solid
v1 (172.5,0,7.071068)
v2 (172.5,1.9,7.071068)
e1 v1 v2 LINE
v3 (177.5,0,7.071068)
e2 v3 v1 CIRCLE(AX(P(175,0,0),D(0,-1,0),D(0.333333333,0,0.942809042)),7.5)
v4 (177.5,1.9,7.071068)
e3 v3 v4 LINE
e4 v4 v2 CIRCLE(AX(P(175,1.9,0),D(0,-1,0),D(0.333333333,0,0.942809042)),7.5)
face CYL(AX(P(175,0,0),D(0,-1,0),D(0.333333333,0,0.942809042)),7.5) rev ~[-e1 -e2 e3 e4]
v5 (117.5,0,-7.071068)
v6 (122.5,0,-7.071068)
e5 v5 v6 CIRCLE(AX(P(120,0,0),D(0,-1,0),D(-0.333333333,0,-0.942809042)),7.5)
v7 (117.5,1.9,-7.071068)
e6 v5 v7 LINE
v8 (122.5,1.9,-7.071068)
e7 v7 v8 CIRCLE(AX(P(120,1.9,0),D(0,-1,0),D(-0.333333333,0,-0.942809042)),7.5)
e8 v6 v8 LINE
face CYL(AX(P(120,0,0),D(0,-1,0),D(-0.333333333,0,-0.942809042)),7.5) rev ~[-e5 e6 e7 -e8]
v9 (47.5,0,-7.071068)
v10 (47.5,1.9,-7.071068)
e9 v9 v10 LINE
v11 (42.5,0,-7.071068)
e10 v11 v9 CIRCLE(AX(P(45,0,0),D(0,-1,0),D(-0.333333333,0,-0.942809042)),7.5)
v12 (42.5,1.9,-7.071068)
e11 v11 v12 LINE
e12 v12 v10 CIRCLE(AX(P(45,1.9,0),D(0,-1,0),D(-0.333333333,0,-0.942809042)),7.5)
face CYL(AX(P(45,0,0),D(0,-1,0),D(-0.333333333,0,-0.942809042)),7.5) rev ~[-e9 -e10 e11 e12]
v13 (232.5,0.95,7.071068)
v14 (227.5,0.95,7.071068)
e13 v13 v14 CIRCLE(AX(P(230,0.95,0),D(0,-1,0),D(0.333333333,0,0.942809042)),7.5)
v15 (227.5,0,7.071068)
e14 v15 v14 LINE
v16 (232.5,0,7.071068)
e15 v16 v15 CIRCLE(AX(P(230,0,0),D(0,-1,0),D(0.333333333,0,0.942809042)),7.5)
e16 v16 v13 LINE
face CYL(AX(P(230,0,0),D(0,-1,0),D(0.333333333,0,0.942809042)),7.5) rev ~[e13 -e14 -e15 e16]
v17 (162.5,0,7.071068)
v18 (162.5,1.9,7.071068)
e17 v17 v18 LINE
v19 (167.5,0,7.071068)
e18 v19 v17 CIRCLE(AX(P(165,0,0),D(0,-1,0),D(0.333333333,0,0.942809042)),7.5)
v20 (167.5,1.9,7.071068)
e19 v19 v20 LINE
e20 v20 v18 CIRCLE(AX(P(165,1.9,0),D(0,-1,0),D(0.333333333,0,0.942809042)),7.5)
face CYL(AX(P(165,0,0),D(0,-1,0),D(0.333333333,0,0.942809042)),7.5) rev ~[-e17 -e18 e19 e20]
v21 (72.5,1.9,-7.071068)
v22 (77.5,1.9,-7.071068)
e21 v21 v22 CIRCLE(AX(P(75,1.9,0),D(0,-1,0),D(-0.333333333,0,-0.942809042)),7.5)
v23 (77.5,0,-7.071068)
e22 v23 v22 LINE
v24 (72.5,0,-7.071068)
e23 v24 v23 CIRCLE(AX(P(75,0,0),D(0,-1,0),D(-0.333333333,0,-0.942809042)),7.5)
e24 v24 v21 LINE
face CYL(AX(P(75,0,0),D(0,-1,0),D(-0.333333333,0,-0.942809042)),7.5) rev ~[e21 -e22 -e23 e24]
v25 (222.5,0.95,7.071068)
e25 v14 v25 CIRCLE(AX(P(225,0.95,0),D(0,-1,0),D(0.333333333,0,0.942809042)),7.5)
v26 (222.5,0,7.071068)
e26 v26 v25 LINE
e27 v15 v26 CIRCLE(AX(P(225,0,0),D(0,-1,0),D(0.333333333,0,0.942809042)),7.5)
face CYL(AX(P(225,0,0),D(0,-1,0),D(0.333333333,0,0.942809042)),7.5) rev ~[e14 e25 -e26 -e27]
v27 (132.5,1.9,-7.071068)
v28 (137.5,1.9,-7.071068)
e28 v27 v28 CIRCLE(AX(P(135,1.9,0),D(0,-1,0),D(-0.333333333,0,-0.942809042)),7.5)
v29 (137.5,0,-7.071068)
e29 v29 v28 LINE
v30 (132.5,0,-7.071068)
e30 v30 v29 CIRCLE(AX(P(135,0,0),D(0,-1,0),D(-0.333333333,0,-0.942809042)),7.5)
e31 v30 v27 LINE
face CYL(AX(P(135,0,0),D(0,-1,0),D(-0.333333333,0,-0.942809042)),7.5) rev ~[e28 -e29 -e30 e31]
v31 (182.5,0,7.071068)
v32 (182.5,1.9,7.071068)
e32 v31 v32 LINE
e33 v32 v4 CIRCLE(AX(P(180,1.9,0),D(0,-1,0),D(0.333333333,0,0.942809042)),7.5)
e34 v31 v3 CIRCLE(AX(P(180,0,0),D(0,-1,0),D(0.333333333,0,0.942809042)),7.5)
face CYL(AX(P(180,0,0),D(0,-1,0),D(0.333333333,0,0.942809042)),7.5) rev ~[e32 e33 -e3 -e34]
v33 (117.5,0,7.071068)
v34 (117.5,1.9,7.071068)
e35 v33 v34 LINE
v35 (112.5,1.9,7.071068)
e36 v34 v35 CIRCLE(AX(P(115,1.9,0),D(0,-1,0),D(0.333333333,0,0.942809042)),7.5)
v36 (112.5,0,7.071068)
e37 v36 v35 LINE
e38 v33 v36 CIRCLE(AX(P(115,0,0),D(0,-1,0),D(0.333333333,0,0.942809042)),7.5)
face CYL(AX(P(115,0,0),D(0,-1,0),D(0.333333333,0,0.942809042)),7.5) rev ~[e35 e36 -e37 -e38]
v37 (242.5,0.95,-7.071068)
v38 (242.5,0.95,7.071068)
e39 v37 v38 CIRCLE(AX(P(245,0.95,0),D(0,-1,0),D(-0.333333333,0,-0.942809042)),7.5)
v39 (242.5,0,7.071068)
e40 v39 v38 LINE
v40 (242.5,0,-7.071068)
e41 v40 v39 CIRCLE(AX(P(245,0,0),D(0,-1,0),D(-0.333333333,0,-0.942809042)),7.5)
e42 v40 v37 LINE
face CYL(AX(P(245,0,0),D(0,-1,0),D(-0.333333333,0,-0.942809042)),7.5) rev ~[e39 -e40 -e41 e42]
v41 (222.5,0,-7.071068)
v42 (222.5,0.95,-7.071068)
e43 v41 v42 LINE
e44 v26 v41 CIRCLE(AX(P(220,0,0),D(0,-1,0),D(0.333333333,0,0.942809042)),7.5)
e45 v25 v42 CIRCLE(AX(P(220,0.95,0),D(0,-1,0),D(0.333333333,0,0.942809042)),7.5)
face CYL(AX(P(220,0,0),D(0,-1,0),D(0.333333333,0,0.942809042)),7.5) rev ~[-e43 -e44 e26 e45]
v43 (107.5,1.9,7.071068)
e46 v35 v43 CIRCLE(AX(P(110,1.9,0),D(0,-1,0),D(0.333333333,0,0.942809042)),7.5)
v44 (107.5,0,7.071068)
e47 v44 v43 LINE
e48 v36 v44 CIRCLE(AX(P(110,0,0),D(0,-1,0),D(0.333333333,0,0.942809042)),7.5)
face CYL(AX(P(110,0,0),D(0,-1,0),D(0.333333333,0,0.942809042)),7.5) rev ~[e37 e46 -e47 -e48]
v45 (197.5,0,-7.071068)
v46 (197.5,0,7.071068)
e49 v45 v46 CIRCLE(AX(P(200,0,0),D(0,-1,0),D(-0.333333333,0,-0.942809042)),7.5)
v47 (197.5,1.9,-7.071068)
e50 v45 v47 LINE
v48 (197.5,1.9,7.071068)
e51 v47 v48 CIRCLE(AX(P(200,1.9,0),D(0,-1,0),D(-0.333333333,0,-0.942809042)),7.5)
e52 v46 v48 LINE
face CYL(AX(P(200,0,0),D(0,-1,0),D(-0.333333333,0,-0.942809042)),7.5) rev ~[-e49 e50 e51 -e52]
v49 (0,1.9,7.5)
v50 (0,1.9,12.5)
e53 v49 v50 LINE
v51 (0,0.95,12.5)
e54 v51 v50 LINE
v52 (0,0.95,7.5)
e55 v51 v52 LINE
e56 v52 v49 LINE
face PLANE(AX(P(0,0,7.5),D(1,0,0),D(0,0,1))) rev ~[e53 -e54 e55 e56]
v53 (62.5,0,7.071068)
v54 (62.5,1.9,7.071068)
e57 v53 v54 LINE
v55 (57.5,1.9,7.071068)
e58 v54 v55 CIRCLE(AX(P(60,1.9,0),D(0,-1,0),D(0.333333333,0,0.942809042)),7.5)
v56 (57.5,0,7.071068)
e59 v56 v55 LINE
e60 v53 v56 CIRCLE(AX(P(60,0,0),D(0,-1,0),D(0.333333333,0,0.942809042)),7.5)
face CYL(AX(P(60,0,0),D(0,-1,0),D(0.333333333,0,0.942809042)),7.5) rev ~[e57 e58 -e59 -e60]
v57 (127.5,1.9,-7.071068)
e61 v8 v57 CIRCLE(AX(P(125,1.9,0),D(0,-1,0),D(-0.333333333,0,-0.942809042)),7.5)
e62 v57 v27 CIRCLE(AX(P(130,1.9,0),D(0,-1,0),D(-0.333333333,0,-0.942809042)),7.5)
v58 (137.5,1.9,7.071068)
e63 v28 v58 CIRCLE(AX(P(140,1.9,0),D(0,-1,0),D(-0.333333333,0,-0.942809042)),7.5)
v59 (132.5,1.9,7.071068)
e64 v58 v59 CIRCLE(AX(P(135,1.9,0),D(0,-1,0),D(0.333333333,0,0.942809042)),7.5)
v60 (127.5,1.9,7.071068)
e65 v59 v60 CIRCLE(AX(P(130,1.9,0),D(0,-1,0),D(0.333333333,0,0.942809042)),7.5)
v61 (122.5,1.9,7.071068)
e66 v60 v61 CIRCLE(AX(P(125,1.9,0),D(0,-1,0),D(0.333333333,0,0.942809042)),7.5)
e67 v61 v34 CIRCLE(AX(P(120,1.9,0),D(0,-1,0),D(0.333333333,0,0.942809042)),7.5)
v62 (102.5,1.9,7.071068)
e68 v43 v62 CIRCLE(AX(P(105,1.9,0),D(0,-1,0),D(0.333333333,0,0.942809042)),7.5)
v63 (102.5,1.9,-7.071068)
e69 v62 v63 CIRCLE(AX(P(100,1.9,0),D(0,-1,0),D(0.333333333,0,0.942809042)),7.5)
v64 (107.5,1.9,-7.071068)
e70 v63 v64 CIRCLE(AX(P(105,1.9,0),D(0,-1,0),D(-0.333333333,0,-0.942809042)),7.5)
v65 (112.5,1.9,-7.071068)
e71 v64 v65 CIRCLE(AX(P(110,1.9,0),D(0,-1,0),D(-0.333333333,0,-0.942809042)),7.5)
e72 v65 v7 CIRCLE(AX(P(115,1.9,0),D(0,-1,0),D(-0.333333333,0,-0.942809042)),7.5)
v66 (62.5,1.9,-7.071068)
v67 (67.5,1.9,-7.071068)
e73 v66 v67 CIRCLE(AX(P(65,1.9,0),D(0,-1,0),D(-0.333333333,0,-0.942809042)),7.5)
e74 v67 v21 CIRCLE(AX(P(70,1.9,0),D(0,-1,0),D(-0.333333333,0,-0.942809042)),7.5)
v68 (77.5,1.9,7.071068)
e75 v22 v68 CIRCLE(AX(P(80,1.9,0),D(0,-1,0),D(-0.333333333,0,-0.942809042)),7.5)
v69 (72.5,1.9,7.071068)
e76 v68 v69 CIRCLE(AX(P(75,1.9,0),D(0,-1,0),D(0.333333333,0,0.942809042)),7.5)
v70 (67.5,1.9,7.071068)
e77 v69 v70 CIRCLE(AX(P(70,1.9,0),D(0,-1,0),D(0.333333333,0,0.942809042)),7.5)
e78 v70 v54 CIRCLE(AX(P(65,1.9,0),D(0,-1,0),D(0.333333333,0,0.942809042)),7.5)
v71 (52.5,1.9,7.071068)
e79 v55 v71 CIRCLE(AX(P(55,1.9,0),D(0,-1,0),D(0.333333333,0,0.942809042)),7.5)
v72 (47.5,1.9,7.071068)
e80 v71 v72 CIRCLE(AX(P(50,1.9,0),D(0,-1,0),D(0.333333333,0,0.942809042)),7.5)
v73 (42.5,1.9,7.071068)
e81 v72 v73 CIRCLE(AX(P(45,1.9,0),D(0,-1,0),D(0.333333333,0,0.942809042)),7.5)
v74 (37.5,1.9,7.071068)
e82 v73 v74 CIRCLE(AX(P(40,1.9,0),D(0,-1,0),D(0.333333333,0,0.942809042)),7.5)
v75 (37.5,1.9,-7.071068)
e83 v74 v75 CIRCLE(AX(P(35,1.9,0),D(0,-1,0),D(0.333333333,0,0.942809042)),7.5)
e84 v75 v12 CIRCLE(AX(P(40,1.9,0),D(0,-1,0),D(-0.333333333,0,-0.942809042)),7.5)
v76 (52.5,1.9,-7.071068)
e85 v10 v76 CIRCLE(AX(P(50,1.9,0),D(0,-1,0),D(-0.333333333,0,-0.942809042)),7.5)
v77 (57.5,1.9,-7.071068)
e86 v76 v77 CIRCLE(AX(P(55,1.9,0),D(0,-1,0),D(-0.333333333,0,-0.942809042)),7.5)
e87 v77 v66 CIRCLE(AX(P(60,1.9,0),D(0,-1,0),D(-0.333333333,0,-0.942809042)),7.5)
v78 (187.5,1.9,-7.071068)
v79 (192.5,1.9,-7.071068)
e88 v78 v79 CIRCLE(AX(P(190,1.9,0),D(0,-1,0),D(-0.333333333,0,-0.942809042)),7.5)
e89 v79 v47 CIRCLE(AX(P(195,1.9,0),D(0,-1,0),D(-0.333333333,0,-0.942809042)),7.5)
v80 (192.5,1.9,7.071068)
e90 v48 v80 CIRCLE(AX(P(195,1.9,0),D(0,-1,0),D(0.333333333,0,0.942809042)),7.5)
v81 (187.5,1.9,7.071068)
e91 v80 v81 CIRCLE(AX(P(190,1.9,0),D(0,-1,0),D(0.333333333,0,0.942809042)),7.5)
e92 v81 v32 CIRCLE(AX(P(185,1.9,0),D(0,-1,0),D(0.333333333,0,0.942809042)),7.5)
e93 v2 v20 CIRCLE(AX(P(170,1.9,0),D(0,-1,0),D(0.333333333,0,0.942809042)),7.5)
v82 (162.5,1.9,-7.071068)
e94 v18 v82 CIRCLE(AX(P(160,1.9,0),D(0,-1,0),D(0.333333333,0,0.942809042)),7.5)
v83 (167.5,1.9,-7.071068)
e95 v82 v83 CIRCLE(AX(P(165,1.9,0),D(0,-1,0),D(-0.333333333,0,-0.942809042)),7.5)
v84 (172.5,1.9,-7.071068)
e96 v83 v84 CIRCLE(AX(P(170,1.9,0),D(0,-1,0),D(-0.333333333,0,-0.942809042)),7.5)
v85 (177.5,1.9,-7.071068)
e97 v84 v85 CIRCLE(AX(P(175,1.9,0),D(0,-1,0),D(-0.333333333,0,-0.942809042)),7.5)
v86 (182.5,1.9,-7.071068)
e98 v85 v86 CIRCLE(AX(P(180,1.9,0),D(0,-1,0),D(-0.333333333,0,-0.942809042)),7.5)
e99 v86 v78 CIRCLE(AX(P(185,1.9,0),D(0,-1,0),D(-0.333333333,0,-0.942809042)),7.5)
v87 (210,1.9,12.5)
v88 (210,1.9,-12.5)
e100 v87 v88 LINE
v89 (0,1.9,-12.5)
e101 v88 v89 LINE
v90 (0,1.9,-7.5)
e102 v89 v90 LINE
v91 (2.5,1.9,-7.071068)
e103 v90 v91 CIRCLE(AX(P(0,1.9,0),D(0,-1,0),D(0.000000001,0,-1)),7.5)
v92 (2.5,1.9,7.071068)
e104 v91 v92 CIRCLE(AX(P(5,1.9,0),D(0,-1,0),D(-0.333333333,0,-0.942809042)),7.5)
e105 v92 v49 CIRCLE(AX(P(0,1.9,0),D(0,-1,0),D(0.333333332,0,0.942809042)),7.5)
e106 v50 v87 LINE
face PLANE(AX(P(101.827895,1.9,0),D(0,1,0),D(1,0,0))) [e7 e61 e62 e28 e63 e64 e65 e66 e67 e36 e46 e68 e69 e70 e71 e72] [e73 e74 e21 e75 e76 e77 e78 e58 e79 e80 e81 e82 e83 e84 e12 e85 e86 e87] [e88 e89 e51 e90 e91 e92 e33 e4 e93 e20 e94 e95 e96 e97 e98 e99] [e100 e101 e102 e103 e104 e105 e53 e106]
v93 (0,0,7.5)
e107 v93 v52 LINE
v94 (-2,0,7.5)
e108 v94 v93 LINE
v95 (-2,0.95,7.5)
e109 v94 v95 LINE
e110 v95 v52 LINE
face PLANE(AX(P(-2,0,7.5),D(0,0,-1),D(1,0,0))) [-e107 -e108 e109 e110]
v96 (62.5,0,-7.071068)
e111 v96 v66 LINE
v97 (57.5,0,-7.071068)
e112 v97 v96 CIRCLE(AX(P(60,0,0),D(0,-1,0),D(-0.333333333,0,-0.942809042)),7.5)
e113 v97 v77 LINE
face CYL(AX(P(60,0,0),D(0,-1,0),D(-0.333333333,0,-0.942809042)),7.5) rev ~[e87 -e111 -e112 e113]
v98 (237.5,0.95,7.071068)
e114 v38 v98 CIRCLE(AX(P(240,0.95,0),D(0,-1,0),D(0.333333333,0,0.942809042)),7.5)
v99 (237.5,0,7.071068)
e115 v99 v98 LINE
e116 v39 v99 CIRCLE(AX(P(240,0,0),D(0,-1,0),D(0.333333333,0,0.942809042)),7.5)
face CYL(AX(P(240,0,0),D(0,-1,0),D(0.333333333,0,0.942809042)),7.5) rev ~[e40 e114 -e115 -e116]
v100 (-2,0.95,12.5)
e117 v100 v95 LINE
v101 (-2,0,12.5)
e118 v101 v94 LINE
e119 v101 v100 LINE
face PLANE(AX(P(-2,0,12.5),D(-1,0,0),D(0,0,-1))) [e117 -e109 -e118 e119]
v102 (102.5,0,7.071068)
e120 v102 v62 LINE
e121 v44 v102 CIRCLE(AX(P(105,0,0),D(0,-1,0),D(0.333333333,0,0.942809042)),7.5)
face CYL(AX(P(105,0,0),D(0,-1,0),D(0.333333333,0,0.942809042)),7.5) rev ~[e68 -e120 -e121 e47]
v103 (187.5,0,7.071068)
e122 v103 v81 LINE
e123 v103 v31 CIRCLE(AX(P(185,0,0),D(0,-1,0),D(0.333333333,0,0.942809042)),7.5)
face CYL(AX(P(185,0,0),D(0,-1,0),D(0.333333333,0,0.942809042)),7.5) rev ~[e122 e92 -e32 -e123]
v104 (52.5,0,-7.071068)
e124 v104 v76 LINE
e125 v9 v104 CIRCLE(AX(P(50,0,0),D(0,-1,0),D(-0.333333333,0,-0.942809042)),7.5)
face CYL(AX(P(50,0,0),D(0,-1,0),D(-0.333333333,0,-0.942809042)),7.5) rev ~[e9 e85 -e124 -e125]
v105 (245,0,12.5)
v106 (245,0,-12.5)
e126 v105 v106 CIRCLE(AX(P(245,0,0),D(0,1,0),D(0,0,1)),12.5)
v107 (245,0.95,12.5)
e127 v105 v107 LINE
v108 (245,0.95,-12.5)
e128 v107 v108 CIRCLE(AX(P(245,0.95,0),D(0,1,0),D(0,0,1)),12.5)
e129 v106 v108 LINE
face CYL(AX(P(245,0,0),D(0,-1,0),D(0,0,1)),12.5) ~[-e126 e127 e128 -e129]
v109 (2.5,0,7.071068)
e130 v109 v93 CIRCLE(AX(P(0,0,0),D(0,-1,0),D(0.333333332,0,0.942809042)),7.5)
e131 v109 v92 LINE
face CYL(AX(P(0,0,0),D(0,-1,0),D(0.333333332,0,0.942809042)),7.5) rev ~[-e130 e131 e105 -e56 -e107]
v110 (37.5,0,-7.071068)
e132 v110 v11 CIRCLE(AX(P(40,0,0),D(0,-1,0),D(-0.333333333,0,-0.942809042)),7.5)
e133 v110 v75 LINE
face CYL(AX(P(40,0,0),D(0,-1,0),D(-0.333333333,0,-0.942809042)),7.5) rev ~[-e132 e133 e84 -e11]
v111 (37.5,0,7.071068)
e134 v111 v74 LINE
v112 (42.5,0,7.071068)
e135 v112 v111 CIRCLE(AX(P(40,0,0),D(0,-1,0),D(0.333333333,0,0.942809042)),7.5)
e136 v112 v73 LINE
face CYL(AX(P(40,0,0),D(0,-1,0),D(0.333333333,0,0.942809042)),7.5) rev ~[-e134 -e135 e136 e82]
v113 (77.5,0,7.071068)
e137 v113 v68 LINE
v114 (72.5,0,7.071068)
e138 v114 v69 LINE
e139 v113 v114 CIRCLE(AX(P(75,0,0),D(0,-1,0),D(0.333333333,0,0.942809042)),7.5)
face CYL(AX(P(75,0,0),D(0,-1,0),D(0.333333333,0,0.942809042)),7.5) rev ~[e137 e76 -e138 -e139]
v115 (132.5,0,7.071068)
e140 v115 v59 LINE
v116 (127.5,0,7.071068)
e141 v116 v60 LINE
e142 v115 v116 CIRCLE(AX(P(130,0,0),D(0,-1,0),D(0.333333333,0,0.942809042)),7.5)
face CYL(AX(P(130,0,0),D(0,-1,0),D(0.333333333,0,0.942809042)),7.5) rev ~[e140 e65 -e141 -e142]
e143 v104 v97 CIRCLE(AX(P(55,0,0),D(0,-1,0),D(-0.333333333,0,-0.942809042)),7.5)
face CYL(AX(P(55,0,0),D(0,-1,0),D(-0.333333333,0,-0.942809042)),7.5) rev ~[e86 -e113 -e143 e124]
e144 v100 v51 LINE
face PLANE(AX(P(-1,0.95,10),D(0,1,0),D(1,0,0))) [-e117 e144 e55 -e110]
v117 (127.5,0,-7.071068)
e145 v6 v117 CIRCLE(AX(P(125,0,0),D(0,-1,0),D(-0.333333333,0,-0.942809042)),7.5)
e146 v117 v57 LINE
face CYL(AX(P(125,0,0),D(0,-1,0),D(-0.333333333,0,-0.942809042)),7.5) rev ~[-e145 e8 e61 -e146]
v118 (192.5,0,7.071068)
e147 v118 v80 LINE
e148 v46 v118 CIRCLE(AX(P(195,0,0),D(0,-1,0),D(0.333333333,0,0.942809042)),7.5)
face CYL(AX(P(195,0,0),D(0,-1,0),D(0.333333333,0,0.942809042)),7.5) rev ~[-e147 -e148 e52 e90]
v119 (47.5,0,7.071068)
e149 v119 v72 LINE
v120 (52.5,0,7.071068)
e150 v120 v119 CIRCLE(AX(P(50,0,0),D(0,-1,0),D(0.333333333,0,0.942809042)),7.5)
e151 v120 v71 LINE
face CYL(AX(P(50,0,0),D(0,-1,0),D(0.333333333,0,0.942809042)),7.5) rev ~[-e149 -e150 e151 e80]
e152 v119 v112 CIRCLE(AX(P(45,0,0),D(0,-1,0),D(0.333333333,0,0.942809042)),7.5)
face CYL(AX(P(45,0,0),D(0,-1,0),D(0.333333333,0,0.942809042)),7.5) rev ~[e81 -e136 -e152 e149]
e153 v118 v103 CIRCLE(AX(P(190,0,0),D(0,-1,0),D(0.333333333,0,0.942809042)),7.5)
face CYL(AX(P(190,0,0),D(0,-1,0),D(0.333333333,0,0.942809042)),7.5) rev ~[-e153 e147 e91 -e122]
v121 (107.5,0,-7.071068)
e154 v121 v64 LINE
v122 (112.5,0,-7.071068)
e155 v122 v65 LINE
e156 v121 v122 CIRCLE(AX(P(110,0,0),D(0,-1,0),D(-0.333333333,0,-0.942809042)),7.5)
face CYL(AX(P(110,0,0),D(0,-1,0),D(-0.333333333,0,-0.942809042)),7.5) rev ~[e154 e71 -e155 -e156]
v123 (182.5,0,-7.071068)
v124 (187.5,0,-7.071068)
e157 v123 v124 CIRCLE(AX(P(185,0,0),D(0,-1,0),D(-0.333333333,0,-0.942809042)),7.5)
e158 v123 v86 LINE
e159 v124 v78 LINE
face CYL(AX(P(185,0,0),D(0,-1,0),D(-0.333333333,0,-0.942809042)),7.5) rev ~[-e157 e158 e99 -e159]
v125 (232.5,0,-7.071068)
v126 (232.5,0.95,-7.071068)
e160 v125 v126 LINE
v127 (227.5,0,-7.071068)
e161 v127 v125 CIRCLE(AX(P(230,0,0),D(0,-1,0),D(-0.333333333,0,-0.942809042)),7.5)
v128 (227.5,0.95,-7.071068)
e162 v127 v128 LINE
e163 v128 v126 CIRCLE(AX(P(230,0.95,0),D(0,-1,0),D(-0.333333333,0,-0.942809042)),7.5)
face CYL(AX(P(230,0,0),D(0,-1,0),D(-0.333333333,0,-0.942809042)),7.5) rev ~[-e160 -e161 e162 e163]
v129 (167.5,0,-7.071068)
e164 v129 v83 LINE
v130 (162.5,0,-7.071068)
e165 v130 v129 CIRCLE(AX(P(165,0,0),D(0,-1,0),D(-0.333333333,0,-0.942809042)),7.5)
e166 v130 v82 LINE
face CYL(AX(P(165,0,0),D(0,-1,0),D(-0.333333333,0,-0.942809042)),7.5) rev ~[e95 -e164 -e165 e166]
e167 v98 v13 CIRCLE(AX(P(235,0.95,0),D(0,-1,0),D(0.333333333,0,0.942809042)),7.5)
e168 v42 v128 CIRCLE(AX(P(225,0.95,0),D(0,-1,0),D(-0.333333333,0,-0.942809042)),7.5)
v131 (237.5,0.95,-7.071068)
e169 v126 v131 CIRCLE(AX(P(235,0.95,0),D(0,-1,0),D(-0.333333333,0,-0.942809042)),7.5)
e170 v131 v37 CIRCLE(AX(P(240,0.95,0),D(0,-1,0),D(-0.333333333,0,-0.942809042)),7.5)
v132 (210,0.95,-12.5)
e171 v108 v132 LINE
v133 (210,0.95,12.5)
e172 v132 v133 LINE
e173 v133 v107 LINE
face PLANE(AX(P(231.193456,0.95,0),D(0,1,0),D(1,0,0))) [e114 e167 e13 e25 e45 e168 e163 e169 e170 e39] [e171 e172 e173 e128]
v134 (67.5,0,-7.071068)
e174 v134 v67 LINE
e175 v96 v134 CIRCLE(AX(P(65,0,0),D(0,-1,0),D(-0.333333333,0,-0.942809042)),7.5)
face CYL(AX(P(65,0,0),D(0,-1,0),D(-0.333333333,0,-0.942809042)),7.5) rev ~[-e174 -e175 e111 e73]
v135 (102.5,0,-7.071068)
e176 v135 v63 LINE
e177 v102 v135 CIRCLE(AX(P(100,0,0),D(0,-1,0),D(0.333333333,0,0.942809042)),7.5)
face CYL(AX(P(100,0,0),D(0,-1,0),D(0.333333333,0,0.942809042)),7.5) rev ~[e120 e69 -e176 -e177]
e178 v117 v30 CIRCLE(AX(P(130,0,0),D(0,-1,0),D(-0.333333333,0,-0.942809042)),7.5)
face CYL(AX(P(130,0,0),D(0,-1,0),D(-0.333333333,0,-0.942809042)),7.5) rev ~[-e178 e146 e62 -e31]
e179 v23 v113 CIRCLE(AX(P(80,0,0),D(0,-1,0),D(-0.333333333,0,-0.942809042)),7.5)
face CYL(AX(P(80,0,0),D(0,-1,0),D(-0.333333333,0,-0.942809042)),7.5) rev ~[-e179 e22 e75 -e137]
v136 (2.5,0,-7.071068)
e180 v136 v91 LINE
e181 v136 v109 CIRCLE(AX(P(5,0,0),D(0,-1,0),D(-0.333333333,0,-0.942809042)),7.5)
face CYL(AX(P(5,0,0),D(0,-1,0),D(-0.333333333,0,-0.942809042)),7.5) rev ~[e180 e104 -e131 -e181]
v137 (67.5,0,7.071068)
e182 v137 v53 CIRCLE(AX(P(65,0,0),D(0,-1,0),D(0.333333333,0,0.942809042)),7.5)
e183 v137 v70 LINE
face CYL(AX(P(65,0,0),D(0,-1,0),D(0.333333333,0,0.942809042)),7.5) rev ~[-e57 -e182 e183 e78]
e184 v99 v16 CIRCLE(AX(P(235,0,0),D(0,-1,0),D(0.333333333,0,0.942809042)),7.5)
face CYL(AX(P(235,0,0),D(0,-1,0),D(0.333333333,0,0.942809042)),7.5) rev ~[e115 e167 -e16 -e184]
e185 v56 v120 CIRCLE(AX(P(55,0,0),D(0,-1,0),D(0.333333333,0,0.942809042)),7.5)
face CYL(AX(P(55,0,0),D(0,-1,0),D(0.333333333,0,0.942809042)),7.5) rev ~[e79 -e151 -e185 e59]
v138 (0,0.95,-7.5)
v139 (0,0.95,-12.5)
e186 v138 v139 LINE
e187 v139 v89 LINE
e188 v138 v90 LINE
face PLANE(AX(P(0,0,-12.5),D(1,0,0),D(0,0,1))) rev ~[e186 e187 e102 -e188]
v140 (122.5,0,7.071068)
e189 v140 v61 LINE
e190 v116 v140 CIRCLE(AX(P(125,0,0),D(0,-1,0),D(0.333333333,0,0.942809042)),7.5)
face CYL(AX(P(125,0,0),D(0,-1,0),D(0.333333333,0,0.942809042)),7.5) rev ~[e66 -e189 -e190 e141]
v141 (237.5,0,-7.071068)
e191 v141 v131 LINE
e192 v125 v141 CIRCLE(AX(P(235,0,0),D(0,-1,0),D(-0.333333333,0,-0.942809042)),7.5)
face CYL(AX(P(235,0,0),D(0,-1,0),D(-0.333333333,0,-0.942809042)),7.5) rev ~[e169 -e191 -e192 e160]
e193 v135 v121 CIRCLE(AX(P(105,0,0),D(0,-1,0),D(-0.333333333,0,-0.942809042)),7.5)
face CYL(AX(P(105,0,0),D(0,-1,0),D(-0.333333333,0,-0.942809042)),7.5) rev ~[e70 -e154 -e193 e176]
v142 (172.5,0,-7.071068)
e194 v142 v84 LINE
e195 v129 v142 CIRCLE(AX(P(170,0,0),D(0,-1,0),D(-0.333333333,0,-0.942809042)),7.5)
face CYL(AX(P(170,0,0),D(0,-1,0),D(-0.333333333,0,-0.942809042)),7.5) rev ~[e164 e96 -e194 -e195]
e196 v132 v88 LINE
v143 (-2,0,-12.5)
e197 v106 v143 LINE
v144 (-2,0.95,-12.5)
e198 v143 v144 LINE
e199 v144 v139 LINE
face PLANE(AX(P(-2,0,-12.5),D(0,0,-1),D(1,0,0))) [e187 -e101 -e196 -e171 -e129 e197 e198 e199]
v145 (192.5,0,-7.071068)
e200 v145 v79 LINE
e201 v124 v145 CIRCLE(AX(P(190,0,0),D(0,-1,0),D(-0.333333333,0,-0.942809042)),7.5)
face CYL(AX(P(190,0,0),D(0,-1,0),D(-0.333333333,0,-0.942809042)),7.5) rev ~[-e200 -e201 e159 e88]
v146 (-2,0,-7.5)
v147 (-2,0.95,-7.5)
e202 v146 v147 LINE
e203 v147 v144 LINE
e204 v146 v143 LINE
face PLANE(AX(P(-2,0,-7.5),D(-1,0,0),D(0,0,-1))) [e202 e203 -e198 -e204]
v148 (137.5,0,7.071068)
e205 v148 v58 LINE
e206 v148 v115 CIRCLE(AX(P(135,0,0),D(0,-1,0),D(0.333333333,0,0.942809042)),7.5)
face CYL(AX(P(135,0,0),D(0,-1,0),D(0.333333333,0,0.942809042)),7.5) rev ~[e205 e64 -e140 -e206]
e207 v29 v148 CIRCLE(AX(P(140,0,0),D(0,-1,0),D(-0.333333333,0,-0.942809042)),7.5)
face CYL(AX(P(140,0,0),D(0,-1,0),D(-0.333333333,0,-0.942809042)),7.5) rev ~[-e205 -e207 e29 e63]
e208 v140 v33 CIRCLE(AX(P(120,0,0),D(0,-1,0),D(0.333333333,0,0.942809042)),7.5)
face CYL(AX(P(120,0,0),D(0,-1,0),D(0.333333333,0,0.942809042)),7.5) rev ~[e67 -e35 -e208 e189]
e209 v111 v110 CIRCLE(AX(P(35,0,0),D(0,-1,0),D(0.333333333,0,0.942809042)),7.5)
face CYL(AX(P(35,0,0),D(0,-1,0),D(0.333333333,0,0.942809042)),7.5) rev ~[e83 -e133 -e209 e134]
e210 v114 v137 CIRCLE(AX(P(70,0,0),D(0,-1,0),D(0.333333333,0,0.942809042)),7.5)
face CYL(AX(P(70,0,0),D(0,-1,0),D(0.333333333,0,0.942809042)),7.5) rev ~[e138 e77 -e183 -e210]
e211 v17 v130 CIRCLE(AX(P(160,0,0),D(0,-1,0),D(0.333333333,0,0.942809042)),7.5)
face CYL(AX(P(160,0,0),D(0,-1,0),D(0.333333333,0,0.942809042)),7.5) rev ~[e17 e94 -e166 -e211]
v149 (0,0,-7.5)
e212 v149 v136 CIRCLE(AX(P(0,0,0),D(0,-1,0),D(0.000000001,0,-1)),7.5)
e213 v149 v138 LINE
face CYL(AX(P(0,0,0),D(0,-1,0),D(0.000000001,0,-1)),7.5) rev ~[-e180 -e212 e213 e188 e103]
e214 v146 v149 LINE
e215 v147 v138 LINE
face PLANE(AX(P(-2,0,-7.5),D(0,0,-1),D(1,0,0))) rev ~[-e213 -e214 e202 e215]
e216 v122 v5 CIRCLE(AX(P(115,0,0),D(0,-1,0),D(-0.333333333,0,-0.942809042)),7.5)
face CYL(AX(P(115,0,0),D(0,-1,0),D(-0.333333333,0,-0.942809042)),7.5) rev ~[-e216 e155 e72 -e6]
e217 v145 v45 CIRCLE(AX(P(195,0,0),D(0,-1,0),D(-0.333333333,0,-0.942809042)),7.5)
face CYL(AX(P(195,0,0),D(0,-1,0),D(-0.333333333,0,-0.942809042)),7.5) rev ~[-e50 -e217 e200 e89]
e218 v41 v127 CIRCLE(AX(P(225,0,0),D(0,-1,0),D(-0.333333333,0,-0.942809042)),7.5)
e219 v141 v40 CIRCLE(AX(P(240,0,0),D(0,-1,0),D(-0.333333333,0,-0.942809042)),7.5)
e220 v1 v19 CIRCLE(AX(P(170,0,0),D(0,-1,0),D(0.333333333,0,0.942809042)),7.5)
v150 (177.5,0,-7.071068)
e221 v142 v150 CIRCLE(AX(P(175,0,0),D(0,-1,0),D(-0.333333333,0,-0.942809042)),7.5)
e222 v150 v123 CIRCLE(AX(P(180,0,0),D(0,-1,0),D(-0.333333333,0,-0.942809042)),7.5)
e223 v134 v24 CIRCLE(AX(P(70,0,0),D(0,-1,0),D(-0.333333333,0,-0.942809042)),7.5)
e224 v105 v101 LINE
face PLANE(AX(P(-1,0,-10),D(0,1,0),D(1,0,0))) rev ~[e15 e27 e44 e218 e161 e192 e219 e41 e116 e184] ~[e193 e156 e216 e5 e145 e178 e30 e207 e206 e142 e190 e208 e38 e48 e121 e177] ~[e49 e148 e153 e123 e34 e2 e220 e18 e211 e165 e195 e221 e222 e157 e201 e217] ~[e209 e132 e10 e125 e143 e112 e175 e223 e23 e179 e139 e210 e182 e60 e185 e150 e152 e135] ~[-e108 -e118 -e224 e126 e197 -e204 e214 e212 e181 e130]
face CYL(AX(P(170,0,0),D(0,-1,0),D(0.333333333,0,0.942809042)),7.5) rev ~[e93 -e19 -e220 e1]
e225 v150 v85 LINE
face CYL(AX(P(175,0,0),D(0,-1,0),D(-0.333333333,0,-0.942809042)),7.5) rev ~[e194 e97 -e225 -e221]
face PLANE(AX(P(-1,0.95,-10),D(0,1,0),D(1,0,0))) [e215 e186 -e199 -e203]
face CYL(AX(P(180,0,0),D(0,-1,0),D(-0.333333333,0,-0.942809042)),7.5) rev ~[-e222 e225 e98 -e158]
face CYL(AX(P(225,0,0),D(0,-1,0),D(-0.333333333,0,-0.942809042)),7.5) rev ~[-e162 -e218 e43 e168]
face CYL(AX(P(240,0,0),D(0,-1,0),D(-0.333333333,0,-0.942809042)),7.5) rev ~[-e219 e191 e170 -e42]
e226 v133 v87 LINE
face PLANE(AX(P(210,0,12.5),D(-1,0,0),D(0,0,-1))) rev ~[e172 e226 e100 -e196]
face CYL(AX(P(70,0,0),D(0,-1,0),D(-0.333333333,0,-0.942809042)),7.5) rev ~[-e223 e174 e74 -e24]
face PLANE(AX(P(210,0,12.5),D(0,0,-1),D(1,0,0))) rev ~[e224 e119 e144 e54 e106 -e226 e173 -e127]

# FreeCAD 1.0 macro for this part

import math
import FreeCAD as App
import Part
import Sketcher
from FreeCAD import Vector
Q = App.Units.Quantity

doc = App.newDocument("Part")
body = doc.addObject("PartDesign::Body", "Body")

sketch1 = doc.addObject("Sketcher::SketchObject", "Sketch")
body.addObject(sketch1)
sketch1.AttachmentSupport = (doc.XZ_Plane, [""])
sketch1.MapMode = "FlatFace"
sketch1.addGeometry([
    Part.LineSegment(Vector(0, 7.5, 0), Vector(0, 12.5, 0)),
    Part.LineSegment(Vector(0, 12.5, 0), Vector(210, 12.5, 0)),
    Part.LineSegment(Vector(210, 12.5, 0), Vector(210, -12.5, 0)),
    Part.LineSegment(Vector(210, -12.5, 0), Vector(0, -12.5, 0)),
    Part.LineSegment(Vector(0, -12.5, 0), Vector(0, -7.5, 0)),
    Part.ArcOfCircle(Part.Circle(Vector(0, 0, 0), Vector(0, 0, 1), 7.5), math.radians(-90), math.radians(-70.53)),
    Part.ArcOfCircle(Part.Circle(Vector(5, 0, 0), Vector(0, 0, 1), 7.5), math.radians(-109), math.radians(109)),
    Part.ArcOfCircle(Part.Circle(Vector(0, 0, 0), Vector(0, 0, 1), 7.5), math.radians(70.53), math.radians(90)),
    Part.ArcOfCircle(Part.Circle(Vector(35, 0, 0), Vector(0, 0, 1), 7.5), math.radians(71), math.radians(289)),
    Part.ArcOfCircle(Part.Circle(Vector(40, 0, 0), Vector(0, 0, 1), 7.5), math.radians(-109), math.radians(-71)),
    Part.ArcOfCircle(Part.Circle(Vector(45, 0, 0), Vector(0, 0, 1), 7.5), math.radians(-109), math.radians(-71)),
    Part.ArcOfCircle(Part.Circle(Vector(50, 0, 0), Vector(0, 0, 1), 7.5), math.radians(-109), math.radians(-71)),
    Part.ArcOfCircle(Part.Circle(Vector(55, 0, 0), Vector(0, 0, 1), 7.5), math.radians(-109), math.radians(-71)),
    Part.ArcOfCircle(Part.Circle(Vector(60, 0, 0), Vector(0, 0, 1), 7.5), math.radians(-109), math.radians(-71)),
    Part.ArcOfCircle(Part.Circle(Vector(65, 0, 0), Vector(0, 0, 1), 7.5), math.radians(-109), math.radians(-71)),
    Part.ArcOfCircle(Part.Circle(Vector(70, 0, 0), Vector(0, 0, 1), 7.5), math.radians(-109), math.radians(-71)),
    Part.ArcOfCircle(Part.Circle(Vector(75, 0, 0), Vector(0, 0, 1), 7.5), math.radians(-109), math.radians(-71)),
    Part.ArcOfCircle(Part.Circle(Vector(80, 0, 0), Vector(0, 0, 1), 7.5), math.radians(-109), math.radians(109)),
    Part.ArcOfCircle(Part.Circle(Vector(75, 0, 0), Vector(0, 0, 1), 7.5), math.radians(71), math.radians(109)),
    Part.ArcOfCircle(Part.Circle(Vector(70, 0, 0), Vector(0, 0, 1), 7.5), math.radians(71), math.radians(109)),
    Part.ArcOfCircle(Part.Circle(Vector(65, 0, 0), Vector(0, 0, 1), 7.5), math.radians(71), math.radians(109)),
    Part.ArcOfCircle(Part.Circle(Vector(60, 0, 0), Vector(0, 0, 1), 7.5), math.radians(71), math.radians(109)),
    Part.ArcOfCircle(Part.Circle(Vector(55, 0, 0), Vector(0, 0, 1), 7.5), math.radians(71), math.radians(109)),
    Part.ArcOfCircle(Part.Circle(Vector(50, 0, 0), Vector(0, 0, 1), 7.5), math.radians(71), math.radians(109)),
    Part.ArcOfCircle(Part.Circle(Vector(45, 0, 0), Vector(0, 0, 1), 7.5), math.radians(71), math.radians(109)),
    Part.ArcOfCircle(Part.Circle(Vector(40, 0, 0), Vector(0, 0, 1), 7.5), math.radians(71), math.radians(109)),
    Part.ArcOfCircle(Part.Circle(Vector(100, 0, 0), Vector(0, 0, 1), 7.5), math.radians(71), math.radians(289)),
    Part.ArcOfCircle(Part.Circle(Vector(105, 0, 0), Vector(0, 0, 1), 7.5), math.radians(-109), math.radians(-71)),
    Part.ArcOfCircle(Part.Circle(Vector(110, 0, 0), Vector(0, 0, 1), 7.5), math.radians(-109), math.radians(-71)),
    Part.ArcOfCircle(Part.Circle(Vector(115, 0, 0), Vector(0, 0, 1), 7.5), math.radians(-109), math.radians(-71)),
    Part.ArcOfCircle(Part.Circle(Vector(120, 0, 0), Vector(0, 0, 1), 7.5), math.radians(-109), math.radians(-71)),
    Part.ArcOfCircle(Part.Circle(Vector(125, 0, 0), Vector(0, 0, 1), 7.5), math.radians(-109), math.radians(-71)),
    Part.ArcOfCircle(Part.Circle(Vector(130, 0, 0), Vector(0, 0, 1), 7.5), math.radians(-109), math.radians(-71)),
    Part.ArcOfCircle(Part.Circle(Vector(135, 0, 0), Vector(0, 0, 1), 7.5), math.radians(-109), math.radians(-71)),
    Part.ArcOfCircle(Part.Circle(Vector(140, 0, 0), Vector(0, 0, 1), 7.5), math.radians(-109), math.radians(109)),
    Part.ArcOfCircle(Part.Circle(Vector(135, 0, 0), Vector(0, 0, 1), 7.5), math.radians(71), math.radians(109)),
    Part.ArcOfCircle(Part.Circle(Vector(130, 0, 0), Vector(0, 0, 1), 7.5), math.radians(71), math.radians(109)),
    Part.ArcOfCircle(Part.Circle(Vector(125, 0, 0), Vector(0, 0, 1), 7.5), math.radians(71), math.radians(109)),
    Part.ArcOfCircle(Part.Circle(Vector(120, 0, 0), Vector(0, 0, 1), 7.5), math.radians(71), math.radians(109)),
    Part.ArcOfCircle(Part.Circle(Vector(115, 0, 0), Vector(0, 0, 1), 7.5), math.radians(71), math.radians(109)),
    Part.ArcOfCircle(Part.Circle(Vector(110, 0, 0), Vector(0, 0, 1), 7.5), math.radians(71), math.radians(109)),
    Part.ArcOfCircle(Part.Circle(Vector(105, 0, 0), Vector(0, 0, 1), 7.5), math.radians(71), math.radians(109)),
    Part.ArcOfCircle(Part.Circle(Vector(160, 0, 0), Vector(0, 0, 1), 7.5), math.radians(71), math.radians(289)),
    Part.ArcOfCircle(Part.Circle(Vector(165, 0, 0), Vector(0, 0, 1), 7.5), math.radians(-109), math.radians(-71)),
    Part.ArcOfCircle(Part.Circle(Vector(170, 0, 0), Vector(0, 0, 1), 7.5), math.radians(-109), math.radians(-71)),
    Part.ArcOfCircle(Part.Circle(Vector(175, 0, 0), Vector(0, 0, 1), 7.5), math.radians(-109), math.radians(-71)),
    Part.ArcOfCircle(Part.Circle(Vector(180, 0, 0), Vector(0, 0, 1), 7.5), math.radians(-109), math.radians(-71)),
    Part.ArcOfCircle(Part.Circle(Vector(185, 0, 0), Vector(0, 0, 1), 7.5), math.radians(-109), math.radians(-71)),
    Part.ArcOfCircle(Part.Circle(Vector(190, 0, 0), Vector(0, 0, 1), 7.5), math.radians(-109), math.radians(-71)),
    Part.ArcOfCircle(Part.Circle(Vector(195, 0, 0), Vector(0, 0, 1), 7.5), math.radians(-109), math.radians(-71)),
    Part.ArcOfCircle(Part.Circle(Vector(200, 0, 0), Vector(0, 0, 1), 7.5), math.radians(-109), math.radians(109)),
    Part.ArcOfCircle(Part.Circle(Vector(195, 0, 0), Vector(0, 0, 1), 7.5), math.radians(71), math.radians(109)),
    Part.ArcOfCircle(Part.Circle(Vector(190, 0, 0), Vector(0, 0, 1), 7.5), math.radians(71), math.radians(109)),
    Part.ArcOfCircle(Part.Circle(Vector(185, 0, 0), Vector(0, 0, 1), 7.5), math.radians(71), math.radians(109)),
    Part.ArcOfCircle(Part.Circle(Vector(180, 0, 0), Vector(0, 0, 1), 7.5), math.radians(71), math.radians(109)),
    Part.ArcOfCircle(Part.Circle(Vector(175, 0, 0), Vector(0, 0, 1), 7.5), math.radians(71), math.radians(109)),
    Part.ArcOfCircle(Part.Circle(Vector(170, 0, 0), Vector(0, 0, 1), 7.5), math.radians(71), math.radians(109)),
    Part.ArcOfCircle(Part.Circle(Vector(165, 0, 0), Vector(0, 0, 1), 7.5), math.radians(71), math.radians(109)),
], False)
sketch1.addConstraint([
    Sketcher.Constraint("Coincident", 0, 2, 1, 1),
    Sketcher.Constraint("Coincident", 1, 2, 2, 1),
    Sketcher.Constraint("Coincident", 2, 2, 3, 1),
    Sketcher.Constraint("Coincident", 3, 2, 4, 1),
    Sketcher.Constraint("Coincident", 4, 2, 5, 1),
    Sketcher.Constraint("Coincident", 5, 2, 6, 1),
    Sketcher.Constraint("Coincident", 6, 2, 7, 1),
    Sketcher.Constraint("Coincident", 7, 2, 0, 1),
    Sketcher.Constraint("Coincident", 8, 2, 9, 1),
    Sketcher.Constraint("Coincident", 9, 2, 10, 1),
    Sketcher.Constraint("Coincident", 10, 2, 11, 1),
    Sketcher.Constraint("Coincident", 11, 2, 12, 1),
    Sketcher.Constraint("Coincident", 12, 2, 13, 1),
    Sketcher.Constraint("Coincident", 13, 2, 14, 1),
    Sketcher.Constraint("Coincident", 14, 2, 15, 1),
    Sketcher.Constraint("Coincident", 15, 2, 16, 1),
    Sketcher.Constraint("Coincident", 16, 2, 17, 1),
    Sketcher.Constraint("Coincident", 17, 2, 18, 1),
    Sketcher.Constraint("Coincident", 18, 2, 19, 1),
    Sketcher.Constraint("Coincident", 19, 2, 20, 1),
    Sketcher.Constraint("Coincident", 20, 2, 21, 1),
    Sketcher.Constraint("Coincident", 21, 2, 22, 1),
    Sketcher.Constraint("Coincident", 22, 2, 23, 1),
    Sketcher.Constraint("Coincident", 23, 2, 24, 1),
    Sketcher.Constraint("Coincident", 24, 2, 25, 1),
    Sketcher.Constraint("Coincident", 25, 2, 8, 1),
    Sketcher.Constraint("Coincident", 26, 2, 27, 1),
    Sketcher.Constraint("Coincident", 27, 2, 28, 1),
    Sketcher.Constraint("Coincident", 28, 2, 29, 1),
    Sketcher.Constraint("Coincident", 29, 2, 30, 1),
    Sketcher.Constraint("Coincident", 30, 2, 31, 1),
    Sketcher.Constraint("Coincident", 31, 2, 32, 1),
    Sketcher.Constraint("Coincident", 32, 2, 33, 1),
    Sketcher.Constraint("Coincident", 33, 2, 34, 1),
    Sketcher.Constraint("Coincident", 34, 2, 35, 1),
    Sketcher.Constraint("Coincident", 35, 2, 36, 1),
    Sketcher.Constraint("Coincident", 36, 2, 37, 1),
    Sketcher.Constraint("Coincident", 37, 2, 38, 1),
    Sketcher.Constraint("Coincident", 38, 2, 39, 1),
    Sketcher.Constraint("Coincident", 39, 2, 40, 1),
    Sketcher.Constraint("Coincident", 40, 2, 41, 1),
    Sketcher.Constraint("Coincident", 41, 2, 26, 1),
    Sketcher.Constraint("Coincident", 42, 2, 43, 1),
    Sketcher.Constraint("Coincident", 43, 2, 44, 1),
    Sketcher.Constraint("Coincident", 44, 2, 45, 1),
    Sketcher.Constraint("Coincident", 45, 2, 46, 1),
    Sketcher.Constraint("Coincident", 46, 2, 47, 1),
    Sketcher.Constraint("Coincident", 47, 2, 48, 1),
    Sketcher.Constraint("Coincident", 48, 2, 49, 1),
    Sketcher.Constraint("Coincident", 49, 2, 50, 1),
    Sketcher.Constraint("Coincident", 50, 2, 51, 1),
    Sketcher.Constraint("Coincident", 51, 2, 52, 1),
    Sketcher.Constraint("Coincident", 52, 2, 53, 1),
    Sketcher.Constraint("Coincident", 53, 2, 54, 1),
    Sketcher.Constraint("Coincident", 54, 2, 55, 1),
    Sketcher.Constraint("Coincident", 55, 2, 56, 1),
    Sketcher.Constraint("Coincident", 56, 2, 57, 1),
    Sketcher.Constraint("Coincident", 57, 2, 42, 1),
    Sketcher.Constraint("Vertical", 0),
    Sketcher.Constraint("Horizontal", 1),
    Sketcher.Constraint("Vertical", 2),
    Sketcher.Constraint("Horizontal", 3),
    Sketcher.Constraint("Vertical", 4),
    Sketcher.Constraint("Coincident", 5, 3, -1, 1),
    Sketcher.Constraint("Coincident", 7, 3, -1, 1),
    Sketcher.Constraint("Coincident", 18, 3, 16, 3),
    Sketcher.Constraint("Coincident", 19, 3, 15, 3),
    Sketcher.Constraint("Coincident", 20, 3, 14, 3),
    Sketcher.Constraint("Coincident", 21, 3, 13, 3),
    Sketcher.Constraint("Coincident", 22, 3, 12, 3),
    Sketcher.Constraint("Coincident", 23, 3, 11, 3),
    Sketcher.Constraint("Coincident", 24, 3, 10, 3),
    Sketcher.Constraint("Coincident", 25, 3, 9, 3),
    Sketcher.Constraint("Coincident", 35, 3, 33, 3),
    Sketcher.Constraint("Coincident", 36, 3, 32, 3),
    Sketcher.Constraint("Coincident", 37, 3, 31, 3),
    Sketcher.Constraint("Coincident", 38, 3, 30, 3),
    Sketcher.Constraint("Coincident", 39, 3, 29, 3),
    Sketcher.Constraint("Coincident", 40, 3, 28, 3),
    Sketcher.Constraint("Coincident", 41, 3, 27, 3),
    Sketcher.Constraint("Coincident", 51, 3, 49, 3),
    Sketcher.Constraint("Coincident", 52, 3, 48, 3),
    Sketcher.Constraint("Coincident", 53, 3, 47, 3),
    Sketcher.Constraint("Coincident", 54, 3, 46, 3),
    Sketcher.Constraint("Coincident", 55, 3, 45, 3),
    Sketcher.Constraint("Coincident", 56, 3, 44, 3),
    Sketcher.Constraint("Coincident", 57, 3, 43, 3),
    Sketcher.Constraint("Equal", 5, 6),
    Sketcher.Constraint("Equal", 6, 7),
    Sketcher.Constraint("Equal", 7, 8),
    Sketcher.Constraint("Equal", 8, 9),
    Sketcher.Constraint("Equal", 9, 10),
    Sketcher.Constraint("Equal", 10, 11),
    Sketcher.Constraint("Equal", 11, 12),
    Sketcher.Constraint("Equal", 12, 13),
    Sketcher.Constraint("Equal", 13, 14),
    Sketcher.Constraint("Equal", 14, 15),
    Sketcher.Constraint("Equal", 15, 16),
    Sketcher.Constraint("Equal", 16, 17),
    Sketcher.Constraint("Equal", 17, 18),
    Sketcher.Constraint("Equal", 18, 19),
    Sketcher.Constraint("Equal", 19, 20),
    Sketcher.Constraint("Equal", 20, 21),
    Sketcher.Constraint("Equal", 21, 22),
    Sketcher.Constraint("Equal", 22, 23),
    Sketcher.Constraint("Equal", 23, 24),
    Sketcher.Constraint("Equal", 24, 25),
    Sketcher.Constraint("Equal", 25, 26),
    Sketcher.Constraint("Equal", 26, 27),
    Sketcher.Constraint("Equal", 27, 28),
    Sketcher.Constraint("Equal", 28, 29),
    Sketcher.Constraint("Equal", 29, 30),
    Sketcher.Constraint("Equal", 30, 31),
    Sketcher.Constraint("Equal", 31, 32),
    Sketcher.Constraint("Equal", 32, 33),
    Sketcher.Constraint("Equal", 33, 34),
    Sketcher.Constraint("Equal", 34, 35),
    Sketcher.Constraint("Equal", 35, 36),
    Sketcher.Constraint("Equal", 36, 37),
    Sketcher.Constraint("Equal", 37, 38),
    Sketcher.Constraint("Equal", 38, 39),
    Sketcher.Constraint("Equal", 39, 40),
    Sketcher.Constraint("Equal", 40, 41),
    Sketcher.Constraint("Equal", 41, 42),
    Sketcher.Constraint("Equal", 42, 43),
    Sketcher.Constraint("Equal", 43, 44),
    Sketcher.Constraint("Equal", 44, 45),
    Sketcher.Constraint("Equal", 45, 46),
    Sketcher.Constraint("Equal", 46, 47),
    Sketcher.Constraint("Equal", 47, 48),
    Sketcher.Constraint("Equal", 48, 49),
    Sketcher.Constraint("Equal", 49, 50),
    Sketcher.Constraint("Equal", 50, 51),
    Sketcher.Constraint("Equal", 51, 52),
    Sketcher.Constraint("Equal", 52, 53),
    Sketcher.Constraint("Equal", 53, 54),
    Sketcher.Constraint("Equal", 54, 55),
    Sketcher.Constraint("Equal", 55, 56),
    Sketcher.Constraint("Equal", 56, 57),
    Sketcher.Constraint("Symmetric", 0, 2, 3, 2, -1, 1),
    Sketcher.Constraint("Symmetric", 16, 2, 17, 2, -1),
    Sketcher.Constraint("Symmetric", 14, 2, 19, 2, -1),
    Sketcher.Constraint("Symmetric", 12, 2, 21, 2, -1),
    Sketcher.Constraint("Symmetric", 10, 2, 23, 2, -1),
    Sketcher.Constraint("Symmetric", 8, 2, 25, 2, -1),
    Sketcher.Constraint("Symmetric", 33, 2, 34, 2, -1),
    Sketcher.Constraint("Symmetric", 31, 2, 36, 2, -1),
    Sketcher.Constraint("Symmetric", 29, 2, 38, 2, -1),
    Sketcher.Constraint("Symmetric", 27, 2, 40, 2, -1),
    Sketcher.Constraint("Symmetric", 49, 2, 50, 2, -1),
    Sketcher.Constraint("Symmetric", 47, 2, 52, 2, -1),
    Sketcher.Constraint("Symmetric", 45, 2, 54, 2, -1),
    Sketcher.Constraint("Symmetric", 43, 2, 56, 2, -1),
    Sketcher.Constraint("PointOnObject", 6, 3, -1),
    Sketcher.Constraint("PointOnObject", 26, 3, -1),
    Sketcher.Constraint("PointOnObject", 42, 3, -1),
    Sketcher.Constraint("PointOnObject", 0, 2, -2),
    Sketcher.Constraint("Horizontal", 5, 2, 8, 2),
    Sketcher.Constraint("Horizontal", 8, 2, 9, 2),
    Sketcher.Constraint("Horizontal", 9, 2, 10, 2),
    Sketcher.Constraint("Horizontal", 10, 2, 11, 2),
    Sketcher.Constraint("Horizontal", 11, 2, 12, 2),
    Sketcher.Constraint("Horizontal", 12, 2, 13, 2),
    Sketcher.Constraint("Horizontal", 13, 2, 14, 2),
    Sketcher.Constraint("Horizontal", 14, 2, 15, 2),
    Sketcher.Constraint("Horizontal", 15, 2, 16, 2),
    Sketcher.Constraint("Horizontal", 16, 2, 26, 2),
    Sketcher.Constraint("Horizontal", 26, 2, 27, 2),
    Sketcher.Constraint("Horizontal", 27, 2, 28, 2),
    Sketcher.Constraint("Horizontal", 28, 2, 29, 2),
    Sketcher.Constraint("Horizontal", 29, 2, 30, 2),
    Sketcher.Constraint("Horizontal", 30, 2, 31, 2),
    Sketcher.Constraint("Horizontal", 31, 2, 32, 2),
    Sketcher.Constraint("Horizontal", 32, 2, 33, 2),
    Sketcher.Constraint("Horizontal", 33, 2, 42, 2),
    Sketcher.Constraint("Horizontal", 42, 2, 43, 2),
    Sketcher.Constraint("Horizontal", 43, 2, 44, 2),
    Sketcher.Constraint("Horizontal", 44, 2, 45, 2),
    Sketcher.Constraint("Horizontal", 45, 2, 46, 2),
    Sketcher.Constraint("Horizontal", 46, 2, 47, 2),
    Sketcher.Constraint("Horizontal", 47, 2, 48, 2),
    Sketcher.Constraint("Horizontal", 48, 2, 49, 2),
    Sketcher.Constraint("Radius", 5, Q("7.5 mm")),
    Sketcher.Constraint("DistanceX", 1, 1, 1, 2, Q("210 mm")),
    Sketcher.Constraint("DistanceY", 0, 1, 0, 2, Q("5 mm")),
    Sketcher.Constraint("DistanceX", -1, 1, 6, 3, Q("5 mm")),
    Sketcher.Constraint("DistanceX", -1, 1, 8, 3, Q("35 mm")),
    Sketcher.Constraint("DistanceX", -1, 1, 26, 3, Q("100 mm")),
    Sketcher.Constraint("DistanceX", -1, 1, 42, 3, Q("160 mm")),
])
pad1 = doc.addObject("PartDesign::Pad", "Pad")
body.addObject(pad1)
pad1.Profile = sketch1
pad1.Length = 1.9
pad1.Reversed = True

sketch2 = doc.addObject("Sketcher::SketchObject", "Sketch001")
body.addObject(sketch2)
sketch2.AttachmentSupport = (doc.XZ_Plane, [""])
sketch2.MapMode = "FlatFace"
sketch2.addGeometry([
    Part.LineSegment(Vector(210, 12, 0), Vector(245, 12, 0)),
    Part.ArcOfCircle(Part.Circle(Vector(245, 0, 0), Vector(0, 0, 1), 12), math.radians(-90), math.radians(90)),
    Part.LineSegment(Vector(245, -12, 0), Vector(210, -12, 0)),
    Part.LineSegment(Vector(210, -12, 0), Vector(210, 12, 0)),
    Part.ArcOfCircle(Part.Circle(Vector(225, 0, 0), Vector(0, 0, 1), 8), math.radians(71), math.radians(109)),
    Part.ArcOfCircle(Part.Circle(Vector(220, 0, 0), Vector(0, 0, 1), 8), math.radians(71), math.radians(289)),
    Part.ArcOfCircle(Part.Circle(Vector(225, 0, 0), Vector(0, 0, 1), 8), math.radians(-109), math.radians(-71)),
    Part.ArcOfCircle(Part.Circle(Vector(230, 0, 0), Vector(0, 0, 1), 8), math.radians(-109), math.radians(-71)),
    Part.ArcOfCircle(Part.Circle(Vector(235, 0, 0), Vector(0, 0, 1), 8), math.radians(-109), math.radians(-71)),
    Part.ArcOfCircle(Part.Circle(Vector(240, 0, 0), Vector(0, 0, 1), 8), math.radians(-109), math.radians(-71)),
    Part.ArcOfCircle(Part.Circle(Vector(245, 0, 0), Vector(0, 0, 1), 8), math.radians(-109), math.radians(109)),
    Part.ArcOfCircle(Part.Circle(Vector(240, 0, 0), Vector(0, 0, 1), 8), math.radians(71), math.radians(109)),
    Part.ArcOfCircle(Part.Circle(Vector(235, 0, 0), Vector(0, 0, 1), 8), math.radians(71), math.radians(109)),
    Part.ArcOfCircle(Part.Circle(Vector(230, 0, 0), Vector(0, 0, 1), 8), math.radians(71), math.radians(109)),
], False)
sketch2.addConstraint([
    Sketcher.Constraint("Tangent", 0, 2, 1, 2),
    Sketcher.Constraint("Tangent", 1, 1, 2, 1),
    Sketcher.Constraint("Coincident", 2, 2, 3, 1),
    Sketcher.Constraint("Coincident", 3, 2, 0, 1),
    Sketcher.Constraint("Coincident", 4, 2, 5, 1),
    Sketcher.Constraint("Coincident", 5, 2, 6, 1),
    Sketcher.Constraint("Coincident", 6, 2, 7, 1),
    Sketcher.Constraint("Coincident", 7, 2, 8, 1),
    Sketcher.Constraint("Coincident", 8, 2, 9, 1),
    Sketcher.Constraint("Coincident", 9, 2, 10, 1),
    Sketcher.Constraint("Coincident", 10, 2, 11, 1),
    Sketcher.Constraint("Coincident", 11, 2, 12, 1),
    Sketcher.Constraint("Coincident", 12, 2, 13, 1),
    Sketcher.Constraint("Coincident", 13, 2, 4, 1),
    Sketcher.Constraint("Horizontal", 0),
    Sketcher.Constraint("Horizontal", 2),
    Sketcher.Constraint("Vertical", 3),
    Sketcher.Constraint("Coincident", 6, 3, 4, 3),
    Sketcher.Constraint("Coincident", 10, 3, 1, 3),
    Sketcher.Constraint("Coincident", 11, 3, 9, 3),
    Sketcher.Constraint("Coincident", 12, 3, 8, 3),
    Sketcher.Constraint("Coincident", 13, 3, 7, 3),
    Sketcher.Constraint("Equal", 4, 5),
    Sketcher.Constraint("Equal", 5, 6),
    Sketcher.Constraint("Equal", 6, 7),
    Sketcher.Constraint("Equal", 7, 8),
    Sketcher.Constraint("Equal", 8, 9),
    Sketcher.Constraint("Equal", 9, 10),
    Sketcher.Constraint("Equal", 10, 11),
    Sketcher.Constraint("Equal", 11, 12),
    Sketcher.Constraint("Equal", 12, 13),
    Sketcher.Constraint("Symmetric", 4, 2, 5, 2, -1),
    Sketcher.Constraint("Symmetric", 9, 2, 10, 2, -1),
    Sketcher.Constraint("Symmetric", 7, 2, 12, 2, -1),
    Sketcher.Constraint("Horizontal", 5, 2, 6, 2),
    Sketcher.Constraint("Horizontal", 6, 2, 7, 2),
    Sketcher.Constraint("Horizontal", 7, 2, 8, 2),
    Sketcher.Constraint("Horizontal", 8, 2, 9, 2),
    Sketcher.Constraint("Radius", 1, Q("12.5 mm")),
    Sketcher.Constraint("Radius", 4, Q("7.5 mm")),
    Sketcher.Constraint("DistanceX", 0, 1, 0, 2, Q("35 mm")),
    Sketcher.Constraint("DistanceX", -1, 1, 1, 3, Q("245 mm")),
    Sketcher.Constraint("DistanceX", -1, 1, 4, 3, Q("225 mm")),
])
pad2 = doc.addObject("PartDesign::Pad", "Pad001")
body.addObject(pad2)
pad2.Profile = sketch2
pad2.Length = 0.95
pad2.Reversed = True

sketch3 = doc.addObject("Sketcher::SketchObject", "Sketch002")
body.addObject(sketch3)
sketch3.AttachmentSupport = (doc.XZ_Plane, [""])
sketch3.MapMode = "FlatFace"
sketch3.addGeometry([
    Part.LineSegment(Vector(-2, -12.5, 0), Vector(-2, -7.5, 0)),
    Part.LineSegment(Vector(-2, -7.5, 0), Vector(0, -7.5, 0)),
    Part.LineSegment(Vector(0, -7.5, 0), Vector(0, -12.5, 0)),
    Part.LineSegment(Vector(0, -12.5, 0), Vector(-2, -12.5, 0)),
    Part.LineSegment(Vector(-2, 7.5, 0), Vector(-2, 12.5, 0)),
    Part.LineSegment(Vector(-2, 12.5, 0), Vector(0, 12.5, 0)),
    Part.LineSegment(Vector(0, 12.5, 0), Vector(0, 7.5, 0)),
    Part.LineSegment(Vector(0, 7.5, 0), Vector(-2, 7.5, 0)),
], False)
sketch3.addConstraint([
    Sketcher.Constraint("Coincident", 0, 2, 1, 1),
    Sketcher.Constraint("Coincident", 1, 2, 2, 1),
    Sketcher.Constraint("Coincident", 2, 2, 3, 1),
    Sketcher.Constraint("Coincident", 3, 2, 0, 1),
    Sketcher.Constraint("Coincident", 4, 2, 5, 1),
    Sketcher.Constraint("Coincident", 5, 2, 6, 1),
    Sketcher.Constraint("Coincident", 6, 2, 7, 1),
    Sketcher.Constraint("Coincident", 7, 2, 4, 1),
    Sketcher.Constraint("Vertical", 0),
    Sketcher.Constraint("Horizontal", 1),
    Sketcher.Constraint("Vertical", 2),
    Sketcher.Constraint("Horizontal", 3),
    Sketcher.Constraint("Vertical", 4),
    Sketcher.Constraint("Horizontal", 5),
    Sketcher.Constraint("Vertical", 6),
    Sketcher.Constraint("Horizontal", 7),
    Sketcher.Constraint("Symmetric", 2, 2, 5, 2, -1, 1),
    Sketcher.Constraint("Symmetric", 1, 2, 6, 2, -1),
    Sketcher.Constraint("Vertical", 3, 2, 4, 2),
    Sketcher.Constraint("DistanceX", 1, 1, 1, 2, Q("2 mm")),
    Sketcher.Constraint("DistanceY", 0, 1, 0, 2, Q("5 mm")),
    Sketcher.Constraint("DistanceY", 0, 2, 4, 2, Q("20 mm")),
])
pad3 = doc.addObject("PartDesign::Pad", "Pad002")
body.addObject(pad3)
pad3.Profile = sketch3
pad3.Length = 0.95
pad3.Reversed = True

doc.recompute()
